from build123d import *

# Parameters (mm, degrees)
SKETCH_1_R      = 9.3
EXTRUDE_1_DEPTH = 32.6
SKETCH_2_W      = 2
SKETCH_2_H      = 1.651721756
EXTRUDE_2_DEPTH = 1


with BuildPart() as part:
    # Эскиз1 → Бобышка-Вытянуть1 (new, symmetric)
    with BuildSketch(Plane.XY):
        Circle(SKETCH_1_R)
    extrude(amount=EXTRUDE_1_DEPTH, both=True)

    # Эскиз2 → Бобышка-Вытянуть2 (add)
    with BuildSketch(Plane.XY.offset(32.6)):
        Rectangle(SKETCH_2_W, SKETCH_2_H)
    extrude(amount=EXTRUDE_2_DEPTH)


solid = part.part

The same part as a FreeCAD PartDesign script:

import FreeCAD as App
import Part
import Sketcher
from FreeCAD import Vector

doc = App.newDocument("Part")
body = doc.addObject("PartDesign::Body", "Body")

# Sketch on XY plane
sketch1 = body.newObject("Sketcher::SketchObject", "Sketch")
sketch1.AttachmentSupport = (doc.getObject("XY_Plane"), [""])
sketch1.MapMode = "FlatFace"
sketch1.addGeometry(Part.Circle(Vector(0, 0, 0), Vector(0, 0, 1), 9), False)
sketch1.addConstraint([
    Sketcher.Constraint("Coincident", 0, 3, -1, 1),
    Sketcher.Constraint("Diameter", 0, 18.6),
])
pad1 = body.newObject("PartDesign::Pad", "Pad")
pad1.Profile = sketch1
pad1.Length = 65.2
pad1.Midplane = True

# Sketch on XY plane
sketch2 = body.newObject("Sketcher::SketchObject", "Sketch001")
sketch2.AttachmentSupport = (doc.getObject("XY_Plane"), [""])
sketch2.MapMode = "FlatFace"
sketch2.AttachmentOffset = App.Placement(Vector(0, 0, 32.6), App.Rotation())
sketch2.addGeometry([
    Part.LineSegment(Vector(-1, 0.8, 0), Vector(-1, -0.8, 0)),
    Part.LineSegment(Vector(-1, -0.8, 0), Vector(1, -0.8, 0)),
    Part.LineSegment(Vector(1, -0.8, 0), Vector(1, 0.8, 0)),
    Part.LineSegment(Vector(1, 0.8, 0), Vector(-1, 0.8, 0)),
], False)
sketch2.addConstraint([
    Sketcher.Constraint("Coincident", 0, 2, 1, 1),
    Sketcher.Constraint("Coincident", 1, 2, 2, 1),
    Sketcher.Constraint("Coincident", 2, 2, 3, 1),
    Sketcher.Constraint("Coincident", 3, 2, 0, 1),
    Sketcher.Constraint("Vertical", 0),
    Sketcher.Constraint("Horizontal", 1),
    Sketcher.Constraint("Vertical", 2),
    Sketcher.Constraint("Horizontal", 3),
    Sketcher.Constraint("Symmetric", 0, 2, 2, 2, -1, 1),
    Sketcher.Constraint("DistanceX", 1, 1, 1, 2, 2.0),
    Sketcher.Constraint("DistanceY", 0, 2, 0, 1, 1.651722),
])
pad2 = body.newObject("PartDesign::Pad", "Pad001")
pad2.Profile = sketch2
pad2.Length = 1

doc.recompute()
